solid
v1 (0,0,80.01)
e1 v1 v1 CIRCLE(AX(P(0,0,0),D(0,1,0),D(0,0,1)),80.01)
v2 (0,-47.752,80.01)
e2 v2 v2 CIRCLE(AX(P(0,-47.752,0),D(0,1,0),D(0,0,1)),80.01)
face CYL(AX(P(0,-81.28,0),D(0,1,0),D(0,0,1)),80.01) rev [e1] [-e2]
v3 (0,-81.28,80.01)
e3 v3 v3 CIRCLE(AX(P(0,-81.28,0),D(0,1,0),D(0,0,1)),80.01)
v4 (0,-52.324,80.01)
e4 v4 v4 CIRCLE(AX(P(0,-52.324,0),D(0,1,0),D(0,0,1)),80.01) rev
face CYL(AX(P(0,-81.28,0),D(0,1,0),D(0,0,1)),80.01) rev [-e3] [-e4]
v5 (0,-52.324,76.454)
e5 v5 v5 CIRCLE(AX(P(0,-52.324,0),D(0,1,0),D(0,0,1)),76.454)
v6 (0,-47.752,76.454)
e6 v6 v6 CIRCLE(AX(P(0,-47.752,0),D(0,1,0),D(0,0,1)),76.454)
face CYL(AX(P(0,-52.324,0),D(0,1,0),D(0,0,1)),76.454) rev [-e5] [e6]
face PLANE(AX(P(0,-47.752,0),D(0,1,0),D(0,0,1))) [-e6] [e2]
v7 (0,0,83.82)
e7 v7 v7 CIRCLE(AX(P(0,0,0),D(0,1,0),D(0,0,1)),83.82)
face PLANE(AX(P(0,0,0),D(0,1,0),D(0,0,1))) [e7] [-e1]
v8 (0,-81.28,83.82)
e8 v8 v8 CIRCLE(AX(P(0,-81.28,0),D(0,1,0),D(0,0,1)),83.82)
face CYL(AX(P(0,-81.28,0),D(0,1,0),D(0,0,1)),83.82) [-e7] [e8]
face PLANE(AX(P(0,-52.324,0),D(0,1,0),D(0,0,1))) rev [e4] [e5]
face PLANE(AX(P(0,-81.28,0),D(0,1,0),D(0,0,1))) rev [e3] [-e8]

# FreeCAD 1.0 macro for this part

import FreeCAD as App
import Part
import Sketcher
from FreeCAD import Vector
Q = App.Units.Quantity

doc = App.newDocument("Part")
body = doc.addObject("PartDesign::Body", "Body")

sketch1 = body.newObject("Sketcher::SketchObject", "Sketch")
sketch1.AttachmentSupport = (doc.getObject("XZ_Plane"), [""])
sketch1.MapMode = "FlatFace"
sketch1.addGeometry([
    Part.Circle(Vector(0, 0, 0), Vector(0, 0, 1), 83.82),
    Part.Circle(Vector(0, 0, 0), Vector(0, 0, 1), 80.01),
], False)
sketch1.addConstraint([
    Sketcher.Constraint("Coincident", 0, 3, -1, 1),
    Sketcher.Constraint("Coincident", 1, 3, -1, 1),
    Sketcher.Constraint("Diameter", 0, Q("6.6 in")),
    Sketcher.Constraint("Diameter", 1, Q("6.3 in")),
])
pad1 = body.newObject("PartDesign::Pad", "Pad")
pad1.Profile = sketch1
pad1.Length = Q("3.2 in")

sketch2 = body.newObject("Sketcher::SketchObject", "Sketch001")
sketch2.AttachmentSupport = (doc.getObject("XZ_Plane"), [""])
sketch2.MapMode = "FlatFace"
sketch2.AttachmentOffset = App.Placement(Vector(0, 0, 1.88 * 25.4), App.Rotation())
sketch2.addGeometry([
    Part.Circle(Vector(0, 0, 0), Vector(0, 0, 1), 80.01),
    Part.Circle(Vector(0, 0, 0), Vector(0, 0, 1), 76.454),
], False)
sketch2.addConstraint([
    Sketcher.Constraint("Coincident", 0, 3, -1, 1),
    Sketcher.Constraint("Coincident", 1, 3, -1, 1),
    Sketcher.Constraint("Diameter", 0, Q("6.3 in")),
    Sketcher.Constraint("Diameter", 1, Q("6.02 in")),
])
pad2 = body.newObject("PartDesign::Pad", "Pad001")
pad2.Profile = sketch2
pad2.Length = Q("0.18 in")

doc.recompute()
